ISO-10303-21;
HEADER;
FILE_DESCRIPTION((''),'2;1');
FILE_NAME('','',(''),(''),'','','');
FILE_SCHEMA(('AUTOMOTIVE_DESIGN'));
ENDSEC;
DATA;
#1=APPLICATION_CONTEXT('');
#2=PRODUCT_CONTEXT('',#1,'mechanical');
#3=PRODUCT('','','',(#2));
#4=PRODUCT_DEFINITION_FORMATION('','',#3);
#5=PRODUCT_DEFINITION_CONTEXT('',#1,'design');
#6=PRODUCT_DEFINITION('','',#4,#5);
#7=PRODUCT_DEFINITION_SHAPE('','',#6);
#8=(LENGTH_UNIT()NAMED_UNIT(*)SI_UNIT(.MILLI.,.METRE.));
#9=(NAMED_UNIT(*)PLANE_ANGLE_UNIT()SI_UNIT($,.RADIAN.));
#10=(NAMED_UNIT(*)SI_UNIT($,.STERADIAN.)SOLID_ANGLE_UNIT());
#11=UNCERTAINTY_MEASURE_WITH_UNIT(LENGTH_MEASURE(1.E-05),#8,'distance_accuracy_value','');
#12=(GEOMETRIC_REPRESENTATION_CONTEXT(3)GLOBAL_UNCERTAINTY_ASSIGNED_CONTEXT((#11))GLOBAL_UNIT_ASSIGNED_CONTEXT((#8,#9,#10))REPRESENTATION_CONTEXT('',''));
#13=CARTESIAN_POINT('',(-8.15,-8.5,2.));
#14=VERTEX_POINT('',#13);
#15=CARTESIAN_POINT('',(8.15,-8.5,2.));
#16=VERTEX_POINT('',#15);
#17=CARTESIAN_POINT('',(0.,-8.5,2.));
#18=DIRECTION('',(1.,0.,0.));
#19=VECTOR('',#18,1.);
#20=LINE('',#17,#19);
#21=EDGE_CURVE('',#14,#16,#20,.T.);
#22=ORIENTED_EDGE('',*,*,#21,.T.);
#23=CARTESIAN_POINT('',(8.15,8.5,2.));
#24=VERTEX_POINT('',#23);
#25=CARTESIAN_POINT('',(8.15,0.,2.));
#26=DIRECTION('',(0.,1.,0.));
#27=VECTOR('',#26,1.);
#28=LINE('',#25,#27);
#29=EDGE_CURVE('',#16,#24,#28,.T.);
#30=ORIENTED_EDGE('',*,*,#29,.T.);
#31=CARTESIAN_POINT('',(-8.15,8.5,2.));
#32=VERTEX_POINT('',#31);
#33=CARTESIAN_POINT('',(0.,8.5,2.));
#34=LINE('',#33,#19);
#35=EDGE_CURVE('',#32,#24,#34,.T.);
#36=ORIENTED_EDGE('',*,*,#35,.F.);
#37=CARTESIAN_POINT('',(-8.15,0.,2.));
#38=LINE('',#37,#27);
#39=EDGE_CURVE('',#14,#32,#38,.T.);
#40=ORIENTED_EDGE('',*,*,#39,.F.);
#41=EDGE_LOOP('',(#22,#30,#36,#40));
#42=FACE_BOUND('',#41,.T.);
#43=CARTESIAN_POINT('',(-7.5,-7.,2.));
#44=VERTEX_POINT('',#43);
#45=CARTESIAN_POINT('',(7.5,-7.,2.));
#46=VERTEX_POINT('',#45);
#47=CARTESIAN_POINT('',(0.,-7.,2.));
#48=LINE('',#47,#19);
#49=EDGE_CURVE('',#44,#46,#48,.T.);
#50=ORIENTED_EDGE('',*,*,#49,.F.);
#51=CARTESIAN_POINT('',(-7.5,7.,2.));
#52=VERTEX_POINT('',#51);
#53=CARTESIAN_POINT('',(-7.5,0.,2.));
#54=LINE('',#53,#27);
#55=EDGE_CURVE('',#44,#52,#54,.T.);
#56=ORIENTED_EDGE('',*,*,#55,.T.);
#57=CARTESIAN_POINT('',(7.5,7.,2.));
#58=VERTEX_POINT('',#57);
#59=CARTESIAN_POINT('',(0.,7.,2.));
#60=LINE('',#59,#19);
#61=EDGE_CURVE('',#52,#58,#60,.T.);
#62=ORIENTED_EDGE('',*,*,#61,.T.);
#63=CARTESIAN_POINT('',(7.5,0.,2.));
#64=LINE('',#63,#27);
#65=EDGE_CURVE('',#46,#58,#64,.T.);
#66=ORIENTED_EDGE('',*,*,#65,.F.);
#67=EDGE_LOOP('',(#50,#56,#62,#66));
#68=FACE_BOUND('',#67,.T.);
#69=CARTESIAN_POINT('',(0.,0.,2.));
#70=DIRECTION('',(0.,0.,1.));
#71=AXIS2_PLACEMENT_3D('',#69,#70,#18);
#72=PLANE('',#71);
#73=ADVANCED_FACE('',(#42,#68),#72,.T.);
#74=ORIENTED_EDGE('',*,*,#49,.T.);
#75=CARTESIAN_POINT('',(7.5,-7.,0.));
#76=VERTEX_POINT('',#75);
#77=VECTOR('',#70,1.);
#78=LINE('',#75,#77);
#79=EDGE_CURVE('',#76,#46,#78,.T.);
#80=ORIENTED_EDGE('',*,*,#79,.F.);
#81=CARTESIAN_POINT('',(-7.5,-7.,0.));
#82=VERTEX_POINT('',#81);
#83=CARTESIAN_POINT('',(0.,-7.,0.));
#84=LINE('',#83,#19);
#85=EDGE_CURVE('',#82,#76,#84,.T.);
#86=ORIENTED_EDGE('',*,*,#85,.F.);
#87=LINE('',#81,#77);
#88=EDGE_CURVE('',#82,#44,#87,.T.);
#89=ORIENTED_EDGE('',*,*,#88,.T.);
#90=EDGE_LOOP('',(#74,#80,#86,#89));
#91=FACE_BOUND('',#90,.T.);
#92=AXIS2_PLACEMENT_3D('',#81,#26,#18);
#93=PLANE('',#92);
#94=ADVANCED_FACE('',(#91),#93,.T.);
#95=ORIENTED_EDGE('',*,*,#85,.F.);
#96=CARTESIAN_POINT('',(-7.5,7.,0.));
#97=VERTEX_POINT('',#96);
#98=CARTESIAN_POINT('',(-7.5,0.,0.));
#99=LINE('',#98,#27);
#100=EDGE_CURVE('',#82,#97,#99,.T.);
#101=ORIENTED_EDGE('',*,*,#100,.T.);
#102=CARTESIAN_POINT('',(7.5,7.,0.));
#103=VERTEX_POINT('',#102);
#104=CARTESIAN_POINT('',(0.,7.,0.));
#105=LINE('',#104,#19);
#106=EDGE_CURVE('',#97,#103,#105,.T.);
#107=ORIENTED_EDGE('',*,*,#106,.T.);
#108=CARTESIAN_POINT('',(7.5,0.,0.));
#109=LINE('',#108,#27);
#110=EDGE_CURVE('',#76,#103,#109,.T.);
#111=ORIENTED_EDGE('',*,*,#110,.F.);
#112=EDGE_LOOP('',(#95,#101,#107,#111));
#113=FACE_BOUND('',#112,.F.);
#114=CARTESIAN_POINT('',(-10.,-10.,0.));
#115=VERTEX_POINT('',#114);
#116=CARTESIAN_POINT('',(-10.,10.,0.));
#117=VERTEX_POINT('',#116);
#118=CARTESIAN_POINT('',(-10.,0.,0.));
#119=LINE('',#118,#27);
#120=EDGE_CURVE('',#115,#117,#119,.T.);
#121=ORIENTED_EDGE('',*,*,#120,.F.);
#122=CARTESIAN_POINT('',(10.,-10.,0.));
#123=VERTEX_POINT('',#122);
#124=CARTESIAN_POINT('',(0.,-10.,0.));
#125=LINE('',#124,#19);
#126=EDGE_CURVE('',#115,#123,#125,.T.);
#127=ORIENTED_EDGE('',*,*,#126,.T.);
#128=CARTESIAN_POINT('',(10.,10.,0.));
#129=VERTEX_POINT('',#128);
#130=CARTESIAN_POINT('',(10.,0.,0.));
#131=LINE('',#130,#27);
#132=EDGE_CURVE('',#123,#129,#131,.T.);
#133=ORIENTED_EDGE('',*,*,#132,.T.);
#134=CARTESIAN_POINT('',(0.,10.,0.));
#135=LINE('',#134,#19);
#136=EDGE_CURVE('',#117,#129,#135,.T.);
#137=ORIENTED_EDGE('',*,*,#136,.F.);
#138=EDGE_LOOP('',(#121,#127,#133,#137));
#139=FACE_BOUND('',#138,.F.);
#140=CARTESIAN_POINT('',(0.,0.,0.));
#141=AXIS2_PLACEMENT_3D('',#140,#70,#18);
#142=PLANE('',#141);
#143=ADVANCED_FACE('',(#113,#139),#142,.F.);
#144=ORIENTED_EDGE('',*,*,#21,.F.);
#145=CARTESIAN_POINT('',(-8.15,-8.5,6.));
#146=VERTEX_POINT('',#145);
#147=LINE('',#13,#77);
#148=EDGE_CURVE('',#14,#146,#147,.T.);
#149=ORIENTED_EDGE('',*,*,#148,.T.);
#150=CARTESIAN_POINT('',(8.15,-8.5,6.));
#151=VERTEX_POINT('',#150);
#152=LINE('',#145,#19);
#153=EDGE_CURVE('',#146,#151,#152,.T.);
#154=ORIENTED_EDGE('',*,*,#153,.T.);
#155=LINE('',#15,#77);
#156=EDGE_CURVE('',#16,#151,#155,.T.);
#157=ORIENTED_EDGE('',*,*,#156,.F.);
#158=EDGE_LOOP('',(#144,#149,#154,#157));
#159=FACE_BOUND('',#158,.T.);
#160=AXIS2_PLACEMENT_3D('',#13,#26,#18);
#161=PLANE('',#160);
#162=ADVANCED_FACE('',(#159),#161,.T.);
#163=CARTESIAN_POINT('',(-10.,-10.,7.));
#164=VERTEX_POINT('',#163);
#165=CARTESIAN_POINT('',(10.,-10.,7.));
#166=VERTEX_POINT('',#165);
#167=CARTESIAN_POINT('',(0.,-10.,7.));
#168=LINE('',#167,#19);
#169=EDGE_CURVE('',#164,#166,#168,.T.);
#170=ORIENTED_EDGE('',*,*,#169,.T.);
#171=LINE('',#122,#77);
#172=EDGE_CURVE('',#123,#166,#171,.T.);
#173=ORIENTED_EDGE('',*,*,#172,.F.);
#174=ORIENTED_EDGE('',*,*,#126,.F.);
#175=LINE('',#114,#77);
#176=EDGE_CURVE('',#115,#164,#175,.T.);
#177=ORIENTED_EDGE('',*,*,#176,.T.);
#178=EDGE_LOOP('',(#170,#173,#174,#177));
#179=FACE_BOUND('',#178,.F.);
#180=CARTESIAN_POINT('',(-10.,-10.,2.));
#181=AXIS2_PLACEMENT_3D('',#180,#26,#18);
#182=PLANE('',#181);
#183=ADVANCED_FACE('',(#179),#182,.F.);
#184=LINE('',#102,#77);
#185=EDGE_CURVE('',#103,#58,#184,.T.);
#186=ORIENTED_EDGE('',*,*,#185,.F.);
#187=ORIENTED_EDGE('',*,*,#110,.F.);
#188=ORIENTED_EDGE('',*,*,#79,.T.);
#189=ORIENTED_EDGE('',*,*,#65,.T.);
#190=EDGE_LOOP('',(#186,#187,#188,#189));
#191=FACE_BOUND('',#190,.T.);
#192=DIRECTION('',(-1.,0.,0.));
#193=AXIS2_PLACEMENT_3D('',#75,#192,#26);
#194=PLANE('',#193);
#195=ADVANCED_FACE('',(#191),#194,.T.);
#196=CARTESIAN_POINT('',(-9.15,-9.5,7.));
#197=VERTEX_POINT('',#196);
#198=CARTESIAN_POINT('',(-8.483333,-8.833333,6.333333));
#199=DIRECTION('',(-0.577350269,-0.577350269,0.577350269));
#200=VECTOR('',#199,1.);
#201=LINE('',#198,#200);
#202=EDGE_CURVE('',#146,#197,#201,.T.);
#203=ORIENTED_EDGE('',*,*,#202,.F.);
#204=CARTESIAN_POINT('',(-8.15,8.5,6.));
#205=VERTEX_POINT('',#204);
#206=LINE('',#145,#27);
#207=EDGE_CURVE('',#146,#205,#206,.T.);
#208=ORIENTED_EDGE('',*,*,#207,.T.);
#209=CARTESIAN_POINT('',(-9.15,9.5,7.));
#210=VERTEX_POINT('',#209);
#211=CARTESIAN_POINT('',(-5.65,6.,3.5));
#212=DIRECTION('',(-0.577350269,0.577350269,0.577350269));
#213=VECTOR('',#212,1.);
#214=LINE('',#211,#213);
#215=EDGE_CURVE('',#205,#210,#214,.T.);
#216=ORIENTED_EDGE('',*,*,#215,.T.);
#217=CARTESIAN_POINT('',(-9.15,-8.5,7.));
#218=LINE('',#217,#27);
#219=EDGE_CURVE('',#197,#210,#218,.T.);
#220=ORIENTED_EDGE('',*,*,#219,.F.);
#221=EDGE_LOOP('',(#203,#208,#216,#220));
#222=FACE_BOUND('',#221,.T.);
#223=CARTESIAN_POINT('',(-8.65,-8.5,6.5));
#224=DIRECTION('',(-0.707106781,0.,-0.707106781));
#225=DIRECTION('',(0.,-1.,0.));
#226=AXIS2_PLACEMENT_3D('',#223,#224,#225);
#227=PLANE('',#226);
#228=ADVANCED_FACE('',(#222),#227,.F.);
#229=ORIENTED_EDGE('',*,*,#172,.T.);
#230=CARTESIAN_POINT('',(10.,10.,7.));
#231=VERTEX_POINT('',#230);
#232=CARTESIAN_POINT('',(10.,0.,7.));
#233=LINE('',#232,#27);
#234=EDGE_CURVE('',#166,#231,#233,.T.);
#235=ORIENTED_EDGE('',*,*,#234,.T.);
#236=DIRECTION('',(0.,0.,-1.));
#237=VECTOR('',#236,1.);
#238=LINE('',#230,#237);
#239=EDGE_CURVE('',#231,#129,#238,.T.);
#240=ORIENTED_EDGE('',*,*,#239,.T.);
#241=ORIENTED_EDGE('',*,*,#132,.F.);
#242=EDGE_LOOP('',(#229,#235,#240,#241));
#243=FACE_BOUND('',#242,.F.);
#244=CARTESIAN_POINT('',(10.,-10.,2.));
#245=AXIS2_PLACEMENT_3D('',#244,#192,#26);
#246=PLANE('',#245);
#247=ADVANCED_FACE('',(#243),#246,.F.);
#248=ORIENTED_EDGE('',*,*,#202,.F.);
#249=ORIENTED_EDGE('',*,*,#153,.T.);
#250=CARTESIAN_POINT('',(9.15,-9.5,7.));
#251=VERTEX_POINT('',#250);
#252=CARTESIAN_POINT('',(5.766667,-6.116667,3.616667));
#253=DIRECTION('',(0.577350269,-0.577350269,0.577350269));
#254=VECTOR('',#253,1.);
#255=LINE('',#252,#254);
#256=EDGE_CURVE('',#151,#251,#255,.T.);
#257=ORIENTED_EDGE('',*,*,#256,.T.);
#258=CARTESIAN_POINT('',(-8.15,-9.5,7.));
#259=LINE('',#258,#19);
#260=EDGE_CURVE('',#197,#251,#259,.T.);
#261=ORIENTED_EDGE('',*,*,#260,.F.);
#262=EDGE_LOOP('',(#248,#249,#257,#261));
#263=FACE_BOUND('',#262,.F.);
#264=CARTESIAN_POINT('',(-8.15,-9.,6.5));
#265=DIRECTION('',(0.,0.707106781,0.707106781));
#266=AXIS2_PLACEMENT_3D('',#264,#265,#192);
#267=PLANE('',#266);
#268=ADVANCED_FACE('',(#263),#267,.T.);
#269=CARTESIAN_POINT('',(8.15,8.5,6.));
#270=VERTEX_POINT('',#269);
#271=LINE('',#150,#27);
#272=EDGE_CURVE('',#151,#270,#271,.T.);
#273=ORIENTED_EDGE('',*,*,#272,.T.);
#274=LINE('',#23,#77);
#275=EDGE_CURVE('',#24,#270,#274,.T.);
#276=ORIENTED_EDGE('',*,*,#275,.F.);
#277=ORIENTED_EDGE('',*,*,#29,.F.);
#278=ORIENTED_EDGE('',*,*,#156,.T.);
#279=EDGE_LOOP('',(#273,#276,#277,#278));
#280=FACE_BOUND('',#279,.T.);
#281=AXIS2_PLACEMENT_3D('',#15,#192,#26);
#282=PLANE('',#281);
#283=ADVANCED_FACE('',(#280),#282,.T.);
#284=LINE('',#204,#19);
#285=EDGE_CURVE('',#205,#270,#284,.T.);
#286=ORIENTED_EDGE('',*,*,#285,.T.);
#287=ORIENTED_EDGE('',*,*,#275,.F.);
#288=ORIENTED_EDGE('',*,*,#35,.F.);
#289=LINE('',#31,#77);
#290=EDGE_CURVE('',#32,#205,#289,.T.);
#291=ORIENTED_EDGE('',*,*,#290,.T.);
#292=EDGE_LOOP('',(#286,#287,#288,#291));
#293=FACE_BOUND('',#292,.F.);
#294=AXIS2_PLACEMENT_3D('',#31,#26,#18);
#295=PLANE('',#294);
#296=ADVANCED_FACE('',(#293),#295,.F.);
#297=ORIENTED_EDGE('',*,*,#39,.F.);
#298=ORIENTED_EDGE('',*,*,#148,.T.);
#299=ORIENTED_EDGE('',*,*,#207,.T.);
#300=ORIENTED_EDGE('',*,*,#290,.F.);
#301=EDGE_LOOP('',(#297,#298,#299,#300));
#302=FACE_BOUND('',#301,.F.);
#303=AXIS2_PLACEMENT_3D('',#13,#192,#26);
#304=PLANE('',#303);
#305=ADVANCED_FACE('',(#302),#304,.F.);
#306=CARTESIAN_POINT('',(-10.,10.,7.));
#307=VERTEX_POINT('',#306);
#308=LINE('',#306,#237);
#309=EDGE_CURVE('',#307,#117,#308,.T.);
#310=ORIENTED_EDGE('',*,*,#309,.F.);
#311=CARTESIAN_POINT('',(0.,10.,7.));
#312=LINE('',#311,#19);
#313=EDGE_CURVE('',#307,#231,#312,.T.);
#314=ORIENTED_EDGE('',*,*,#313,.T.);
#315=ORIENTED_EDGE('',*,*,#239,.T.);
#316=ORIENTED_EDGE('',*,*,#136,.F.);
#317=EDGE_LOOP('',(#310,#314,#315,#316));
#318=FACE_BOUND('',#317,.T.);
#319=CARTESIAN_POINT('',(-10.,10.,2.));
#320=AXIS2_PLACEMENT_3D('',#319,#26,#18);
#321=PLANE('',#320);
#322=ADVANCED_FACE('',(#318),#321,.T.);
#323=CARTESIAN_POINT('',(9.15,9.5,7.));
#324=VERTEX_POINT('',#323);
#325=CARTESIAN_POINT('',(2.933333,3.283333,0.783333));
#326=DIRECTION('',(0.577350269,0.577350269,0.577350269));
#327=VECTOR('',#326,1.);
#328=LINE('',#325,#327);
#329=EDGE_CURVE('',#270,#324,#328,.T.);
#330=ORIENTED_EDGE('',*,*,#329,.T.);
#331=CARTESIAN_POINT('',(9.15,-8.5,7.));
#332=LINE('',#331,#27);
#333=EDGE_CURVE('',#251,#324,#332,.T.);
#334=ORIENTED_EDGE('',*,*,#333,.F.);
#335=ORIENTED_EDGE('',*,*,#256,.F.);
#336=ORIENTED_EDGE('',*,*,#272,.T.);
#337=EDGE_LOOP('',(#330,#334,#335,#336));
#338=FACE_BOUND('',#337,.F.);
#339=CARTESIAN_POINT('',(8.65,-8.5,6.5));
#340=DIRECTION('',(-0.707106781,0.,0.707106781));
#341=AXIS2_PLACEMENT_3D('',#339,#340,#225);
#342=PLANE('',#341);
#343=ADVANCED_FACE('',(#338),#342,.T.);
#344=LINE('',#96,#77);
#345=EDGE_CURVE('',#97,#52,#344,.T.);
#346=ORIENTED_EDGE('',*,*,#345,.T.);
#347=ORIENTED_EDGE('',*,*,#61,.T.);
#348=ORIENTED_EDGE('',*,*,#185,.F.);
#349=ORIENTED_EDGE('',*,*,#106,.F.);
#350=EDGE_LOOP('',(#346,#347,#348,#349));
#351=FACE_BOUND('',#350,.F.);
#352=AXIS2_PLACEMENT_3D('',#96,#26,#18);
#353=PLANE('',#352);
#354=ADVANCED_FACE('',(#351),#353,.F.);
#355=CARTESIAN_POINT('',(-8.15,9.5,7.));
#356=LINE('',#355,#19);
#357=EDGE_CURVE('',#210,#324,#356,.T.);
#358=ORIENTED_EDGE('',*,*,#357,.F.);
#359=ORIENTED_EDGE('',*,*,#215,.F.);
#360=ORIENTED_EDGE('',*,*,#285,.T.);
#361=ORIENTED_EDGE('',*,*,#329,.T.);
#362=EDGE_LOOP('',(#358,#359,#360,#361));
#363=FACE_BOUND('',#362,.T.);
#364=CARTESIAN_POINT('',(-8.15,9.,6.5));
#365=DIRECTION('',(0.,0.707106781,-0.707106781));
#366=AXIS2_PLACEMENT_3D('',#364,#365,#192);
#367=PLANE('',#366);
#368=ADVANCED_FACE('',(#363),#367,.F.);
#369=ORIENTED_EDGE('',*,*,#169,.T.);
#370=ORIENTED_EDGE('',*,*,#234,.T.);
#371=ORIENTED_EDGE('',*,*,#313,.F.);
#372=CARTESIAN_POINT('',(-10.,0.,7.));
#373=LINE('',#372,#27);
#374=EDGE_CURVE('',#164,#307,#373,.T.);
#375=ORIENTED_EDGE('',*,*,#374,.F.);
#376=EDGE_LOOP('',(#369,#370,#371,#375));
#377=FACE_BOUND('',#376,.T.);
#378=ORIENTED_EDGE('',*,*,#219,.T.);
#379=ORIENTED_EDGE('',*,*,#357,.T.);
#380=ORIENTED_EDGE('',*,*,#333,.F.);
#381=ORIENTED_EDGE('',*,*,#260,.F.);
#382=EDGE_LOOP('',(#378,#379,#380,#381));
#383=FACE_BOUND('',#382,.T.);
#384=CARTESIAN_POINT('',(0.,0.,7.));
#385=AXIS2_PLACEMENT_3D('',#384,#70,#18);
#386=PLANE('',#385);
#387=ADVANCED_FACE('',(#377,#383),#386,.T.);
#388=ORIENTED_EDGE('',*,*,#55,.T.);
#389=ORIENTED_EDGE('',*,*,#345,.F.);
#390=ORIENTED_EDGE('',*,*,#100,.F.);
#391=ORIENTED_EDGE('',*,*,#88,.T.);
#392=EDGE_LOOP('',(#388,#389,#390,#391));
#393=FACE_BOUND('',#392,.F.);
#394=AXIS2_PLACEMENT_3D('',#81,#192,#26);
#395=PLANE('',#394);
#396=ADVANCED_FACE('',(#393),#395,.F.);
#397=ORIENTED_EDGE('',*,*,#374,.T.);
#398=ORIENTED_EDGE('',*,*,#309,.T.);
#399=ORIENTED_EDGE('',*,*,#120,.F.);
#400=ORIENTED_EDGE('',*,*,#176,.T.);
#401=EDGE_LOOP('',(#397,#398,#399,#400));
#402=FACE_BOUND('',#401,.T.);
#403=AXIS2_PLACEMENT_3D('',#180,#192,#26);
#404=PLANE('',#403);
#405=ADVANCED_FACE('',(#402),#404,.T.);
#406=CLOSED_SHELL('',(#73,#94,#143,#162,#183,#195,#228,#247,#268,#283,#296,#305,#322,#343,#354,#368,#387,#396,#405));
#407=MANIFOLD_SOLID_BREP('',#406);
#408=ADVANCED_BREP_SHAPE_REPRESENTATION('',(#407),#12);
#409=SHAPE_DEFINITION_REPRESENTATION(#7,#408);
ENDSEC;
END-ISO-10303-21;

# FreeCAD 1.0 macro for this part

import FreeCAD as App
import Part
import Sketcher
from FreeCAD import Vector
Q = App.Units.Quantity


def edges_at(feature, points):
    """Names of the edges that pass closest to the given points."""
    edges = feature.Shape.Edges
    near = lambda p: min(range(len(edges)), key=lambda i: edges[i].distToShape(Part.Vertex(*p))[0])
    return sorted({f"Edge{near(p) + 1}" for p in points})

doc = App.newDocument("Part")
params = doc.addObject("Spreadsheet::Sheet", "Params")
for row, (alias, value) in enumerate([
    ("sketch1_width", "20 mm"),
    ("sketch1_width2", "15 mm"),
    ("sketch1_height", "14 mm"),
    ("pad1_length", "2 mm"),
    ("sketch2_width", "20 mm"),
    ("sketch2_height", "17 mm"),
    ("sketch2_width2", "16.3 mm"),
    ("pad2_length", "5 mm"),
    ("chamfer_size", "1 mm"),
], start=1):
    params.set(f"A{row}", alias)
    params.set(f"B{row}", "=" + value)
    params.setAlias(f"B{row}", alias)

body = doc.addObject("PartDesign::Body", "Body")

sketch1 = body.newObject("Sketcher::SketchObject", "Sketch")
sketch1.AttachmentSupport = (doc.getObject("XY_Plane"), [""])
sketch1.MapMode = "FlatFace"
sketch1.addGeometry([
    Part.LineSegment(Vector(-10, 10, 0), Vector(-10, -10, 0)),
    Part.LineSegment(Vector(-10, -10, 0), Vector(10, -10, 0)),
    Part.LineSegment(Vector(10, -10, 0), Vector(10, 10, 0)),
    Part.LineSegment(Vector(10, 10, 0), Vector(-10, 10, 0)),
    Part.LineSegment(Vector(8, -7, 0), Vector(-8, -7, 0)),
    Part.LineSegment(Vector(-8, -7, 0), Vector(-8, 7, 0)),
    Part.LineSegment(Vector(-8, 7, 0), Vector(8, 7, 0)),
    Part.LineSegment(Vector(8, 7, 0), Vector(8, -7, 0)),
], False)
sketch1.addConstraint([
    Sketcher.Constraint("Coincident", 0, 2, 1, 1),
    Sketcher.Constraint("Coincident", 1, 2, 2, 1),
    Sketcher.Constraint("Coincident", 2, 2, 3, 1),
    Sketcher.Constraint("Coincident", 3, 2, 0, 1),
    Sketcher.Constraint("Coincident", 4, 2, 5, 1),
    Sketcher.Constraint("Coincident", 5, 2, 6, 1),
    Sketcher.Constraint("Coincident", 6, 2, 7, 1),
    Sketcher.Constraint("Coincident", 7, 2, 4, 1),
    Sketcher.Constraint("Vertical", 0),
    Sketcher.Constraint("Horizontal", 1),
    Sketcher.Constraint("Vertical", 2),
    Sketcher.Constraint("Horizontal", 3),
    Sketcher.Constraint("Horizontal", 4),
    Sketcher.Constraint("Vertical", 5),
    Sketcher.Constraint("Horizontal", 6),
    Sketcher.Constraint("Vertical", 7),
    Sketcher.Constraint("Symmetric", 0, 2, 2, 2, -1, 1),
    Sketcher.Constraint("Symmetric", 4, 2, 6, 2, -1, 1),
    Sketcher.Constraint("Equal", 3, 0),
    Sketcher.Constraint("DistanceX", 1, 1, 1, 2, Q("20 mm")),
    Sketcher.Constraint("DistanceX", 4, 2, 4, 1, Q("15 mm")),
    Sketcher.Constraint("DistanceY", 5, 1, 5, 2, Q("14 mm")),
])
sketch1.setExpression("Constraints[19]", "Params.sketch1_width")
sketch1.setExpression("Constraints[20]", "Params.sketch1_width2")
sketch1.setExpression("Constraints[21]", "Params.sketch1_height")
pad1 = body.newObject("PartDesign::Pad", "Pad")
pad1.Profile = sketch1
pad1.setExpression("Length", "Params.pad1_length")

sketch2 = body.newObject("Sketcher::SketchObject", "Sketch001")
sketch2.AttachmentSupport = (doc.getObject("XY_Plane"), [""])
sketch2.MapMode = "FlatFace"
sketch2.AttachmentOffset = App.Placement(Vector(0, 0, 2), App.Rotation())
sketch2.addGeometry([
    Part.LineSegment(Vector(-10, 10, 0), Vector(-10, -10, 0)),
    Part.LineSegment(Vector(-10, -10, 0), Vector(10, -10, 0)),
    Part.LineSegment(Vector(10, -10, 0), Vector(10, 10, 0)),
    Part.LineSegment(Vector(10, 10, 0), Vector(-10, 10, 0)),
    Part.LineSegment(Vector(8, -8, 0), Vector(-8, -8, 0)),
    Part.LineSegment(Vector(-8, -8, 0), Vector(-8, 8, 0)),
    Part.LineSegment(Vector(-8, 8, 0), Vector(8, 8, 0)),
    Part.LineSegment(Vector(8, 8, 0), Vector(8, -8, 0)),
], False)
sketch2.addConstraint([
    Sketcher.Constraint("Coincident", 0, 2, 1, 1),
    Sketcher.Constraint("Coincident", 1, 2, 2, 1),
    Sketcher.Constraint("Coincident", 2, 2, 3, 1),
    Sketcher.Constraint("Coincident", 3, 2, 0, 1),
    Sketcher.Constraint("Coincident", 4, 2, 5, 1),
    Sketcher.Constraint("Coincident", 5, 2, 6, 1),
    Sketcher.Constraint("Coincident", 6, 2, 7, 1),
    Sketcher.Constraint("Coincident", 7, 2, 4, 1),
    Sketcher.Constraint("Vertical", 0),
    Sketcher.Constraint("Horizontal", 1),
    Sketcher.Constraint("Vertical", 2),
    Sketcher.Constraint("Horizontal", 3),
    Sketcher.Constraint("Horizontal", 4),
    Sketcher.Constraint("Vertical", 5),
    Sketcher.Constraint("Horizontal", 6),
    Sketcher.Constraint("Vertical", 7),
    Sketcher.Constraint("Symmetric", 0, 2, 2, 2, -1, 1),
    Sketcher.Constraint("Symmetric", 4, 2, 6, 2, -1, 1),
    Sketcher.Constraint("Equal", 3, 0),
    Sketcher.Constraint("DistanceX", 1, 1, 1, 2, Q("20 mm")),
    Sketcher.Constraint("DistanceY", 5, 1, 5, 2, Q("17 mm")),
    Sketcher.Constraint("DistanceX", 4, 2, 4, 1, Q("16.3 mm")),
])
sketch2.setExpression("Constraints[19]", "Params.sketch2_width")
sketch2.setExpression("Constraints[20]", "Params.sketch2_height")
sketch2.setExpression("Constraints[21]", "Params.sketch2_width2")
pad2 = body.newObject("PartDesign::Pad", "Pad001")
pad2.Profile = sketch2
pad2.setExpression("Length", "Params.pad2_length")
doc.recompute()

chamfer = body.newObject("PartDesign::Chamfer", "Chamfer")
chamfer.Base = (pad2, edges_at(pad2, [
    (0, 8.5, 7),
    (-8.15, 0, 7),
    (0, -8.5, 7),
    (8.15, 0, 7),
]))
chamfer.setExpression("Size", "Params.chamfer_size")

doc.recompute()
